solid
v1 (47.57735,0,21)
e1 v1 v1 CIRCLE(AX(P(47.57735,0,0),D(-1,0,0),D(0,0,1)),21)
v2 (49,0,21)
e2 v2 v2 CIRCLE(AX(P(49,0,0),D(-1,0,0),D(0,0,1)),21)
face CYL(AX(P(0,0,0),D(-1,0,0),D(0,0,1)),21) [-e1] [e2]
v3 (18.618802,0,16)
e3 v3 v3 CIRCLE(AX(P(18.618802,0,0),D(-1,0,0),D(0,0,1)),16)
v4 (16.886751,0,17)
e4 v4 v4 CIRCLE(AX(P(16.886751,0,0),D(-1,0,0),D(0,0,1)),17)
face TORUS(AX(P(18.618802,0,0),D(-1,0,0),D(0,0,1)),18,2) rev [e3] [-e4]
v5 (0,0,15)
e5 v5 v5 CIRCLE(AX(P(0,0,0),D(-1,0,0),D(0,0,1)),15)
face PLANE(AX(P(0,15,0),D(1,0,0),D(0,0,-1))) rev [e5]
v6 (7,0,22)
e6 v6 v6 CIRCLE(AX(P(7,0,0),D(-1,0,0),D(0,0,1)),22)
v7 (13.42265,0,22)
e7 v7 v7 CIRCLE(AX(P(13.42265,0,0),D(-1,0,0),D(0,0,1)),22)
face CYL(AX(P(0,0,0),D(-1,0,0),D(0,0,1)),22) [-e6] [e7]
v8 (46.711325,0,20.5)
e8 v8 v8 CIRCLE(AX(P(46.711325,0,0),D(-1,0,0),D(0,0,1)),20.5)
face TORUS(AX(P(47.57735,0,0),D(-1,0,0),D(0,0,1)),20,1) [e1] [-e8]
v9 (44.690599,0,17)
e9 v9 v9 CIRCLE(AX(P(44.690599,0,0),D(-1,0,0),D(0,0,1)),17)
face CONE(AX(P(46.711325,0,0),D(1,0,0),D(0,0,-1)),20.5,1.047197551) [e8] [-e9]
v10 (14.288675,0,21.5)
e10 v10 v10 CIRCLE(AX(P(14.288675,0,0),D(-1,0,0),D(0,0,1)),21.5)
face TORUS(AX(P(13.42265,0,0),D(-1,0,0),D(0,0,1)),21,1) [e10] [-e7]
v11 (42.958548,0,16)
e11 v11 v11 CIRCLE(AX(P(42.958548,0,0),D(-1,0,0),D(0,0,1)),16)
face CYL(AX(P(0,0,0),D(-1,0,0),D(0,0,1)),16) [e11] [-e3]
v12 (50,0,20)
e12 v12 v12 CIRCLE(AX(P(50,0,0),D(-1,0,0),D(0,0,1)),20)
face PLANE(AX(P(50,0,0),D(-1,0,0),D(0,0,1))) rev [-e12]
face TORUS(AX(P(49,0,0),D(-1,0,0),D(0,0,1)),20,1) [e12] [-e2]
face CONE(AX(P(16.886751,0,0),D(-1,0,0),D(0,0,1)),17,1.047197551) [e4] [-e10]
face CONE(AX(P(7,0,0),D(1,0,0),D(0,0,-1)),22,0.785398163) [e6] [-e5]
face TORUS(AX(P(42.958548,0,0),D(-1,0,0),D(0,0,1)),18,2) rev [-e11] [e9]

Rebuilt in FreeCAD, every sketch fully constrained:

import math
import FreeCAD as App
import Part
import Sketcher
from FreeCAD import Vector
Q = App.Units.Quantity

doc = App.newDocument("Part")
params = doc.addObject("Spreadsheet::Sheet", "Params")
for row, (alias, value) in enumerate([
    ("sketch1_radius", "1 mm"),
    ("sketch1_radius2", "2 mm"),
    ("sketch1_width", "50 mm"),
    ("sketch1_height", "20 mm"),
    ("sketch1_height2", "15 mm"),
    ("revolution_angle", "360 deg"),
], start=1):
    params.set(f"A{row}", alias)
    params.set(f"B{row}", "=" + value)
    params.setAlias(f"B{row}", alias)

body = doc.addObject("PartDesign::Body", "Body")

# Sketch on XY plane
sketch1 = doc.addObject("Sketcher::SketchObject", "Sketch")
body.addObject(sketch1)
sketch1.AttachmentSupport = (doc.XY_Plane, [""])
sketch1.MapMode = "FlatFace"
sketch1.addGeometry([
    Part.LineSegment(Vector(50, 0, 0), Vector(50, 20, 0)),  # 0
    Part.ArcOfCircle(Part.Circle(Vector(49, 20, 0), Vector(0, 0, 1), 1), math.radians(0), math.radians(90)),  # 1
    Part.LineSegment(Vector(49, 21, 0), Vector(47.57735, 21, 0)),  # 2
    Part.ArcOfCircle(Part.Circle(Vector(47.57735, 20, 0), Vector(0, 0, 1), 1), math.radians(90), math.radians(150)),  # 3
    Part.LineSegment(Vector(46.711325, 20.5, 0), Vector(44.690599, 17, 0)),  # 4
    Part.ArcOfCircle(Part.Circle(Vector(42.958548, 18, 0), Vector(0, 0, 1), 2), math.radians(-90), math.radians(-30)),  # 5
    Part.LineSegment(Vector(42.958548, 16, 0), Vector(18.618802, 16, 0)),  # 6
    Part.ArcOfCircle(Part.Circle(Vector(18.618802, 18, 0), Vector(0, 0, 1), 2), math.radians(-150), math.radians(-90)),  # 7
    Part.LineSegment(Vector(16.886751, 17, 0), Vector(14.288675, 21.5, 0)),  # 8
    Part.ArcOfCircle(Part.Circle(Vector(13.42265, 21, 0), Vector(0, 0, 1), 1), math.radians(30), math.radians(90)),  # 9
    Part.LineSegment(Vector(13.42265, 22, 0), Vector(7, 22, 0)),  # 10
    Part.LineSegment(Vector(7, 22, 0), Vector(0, 15, 0)),  # 11
    Part.LineSegment(Vector(0, 15, 0), Vector(0, 0, 0)),  # 12
    Part.LineSegment(Vector(0, 0, 0), Vector(50, 0, 0)),  # 13
], False)
sketch1.addConstraint([
    Sketcher.Constraint("Tangent", 0, 2, 1, 1),
    Sketcher.Constraint("Tangent", 1, 2, 2, 1),
    Sketcher.Constraint("Tangent", 2, 2, 3, 1),
    Sketcher.Constraint("Tangent", 3, 2, 4, 1),
    Sketcher.Constraint("Tangent", 4, 2, 5, 2),
    Sketcher.Constraint("Tangent", 5, 1, 6, 1),
    Sketcher.Constraint("Tangent", 6, 2, 7, 2),
    Sketcher.Constraint("Tangent", 7, 1, 8, 1),
    Sketcher.Constraint("Tangent", 8, 2, 9, 1),
    Sketcher.Constraint("Tangent", 9, 2, 10, 1),
    Sketcher.Constraint("Coincident", 10, 2, 11, 1),
    Sketcher.Constraint("Coincident", 11, 2, 12, 1),
    Sketcher.Constraint("Coincident", 12, 2, 13, 1),
    Sketcher.Constraint("Coincident", 13, 2, 0, 1),
    Sketcher.Constraint("Vertical", 0),
    Sketcher.Constraint("Horizontal", 2),
    Sketcher.Constraint("Horizontal", 6),
    Sketcher.Constraint("Horizontal", 10),
    Sketcher.Constraint("Vertical", 12),
    Sketcher.Constraint("Horizontal", 13),
    Sketcher.Constraint("Coincident", 12, 2, -1, 1),
    Sketcher.Constraint("Equal", 1, 3),
    Sketcher.Constraint("Equal", 5, 7),
    Sketcher.Constraint("Equal", 3, 9),
    Sketcher.Constraint("Horizontal", 9, 3, 1, 2),
    Sketcher.Constraint("Horizontal", 4, 2, 7, 1),
    Sketcher.Constraint("Radius", 1, Q("1 mm")),
    Sketcher.Constraint("Radius", 5, Q("2 mm")),
    Sketcher.Constraint("DistanceX", 13, 1, 13, 2, Q("50 mm")),
    Sketcher.Constraint("DistanceY", 0, 1, 0, 2, Q("20 mm")),
    Sketcher.Constraint("DistanceY", 12, 2, 12, 1, Q("15 mm")),
    Sketcher.Constraint("Angle", 4, Q("-120 deg")),
    Sketcher.Constraint("Angle", 11, Q("-135 deg")),
    Sketcher.Constraint("DistanceY", -1, 1, 5, 3, Q("18 mm")),
    Sketcher.Constraint("DistanceX", 2, 2, 2, 1, Q("1.42265 mm")),
    Sketcher.Constraint("DistanceX", 10, 2, 10, 1, Q("6.42265 mm")),
])
sketch1.setExpression("Constraints[26]", "Params.sketch1_radius")
sketch1.setExpression("Constraints[27]", "Params.sketch1_radius2")
sketch1.setExpression("Constraints[28]", "Params.sketch1_width")
sketch1.setExpression("Constraints[29]", "Params.sketch1_height")
sketch1.setExpression("Constraints[30]", "Params.sketch1_height2")
revolution = doc.addObject("PartDesign::Revolution", "Revolution")
body.addObject(revolution)
revolution.Profile = sketch1
revolution.ReferenceAxis = (sketch1, ["H_Axis"])
revolution.setExpression("Angle", "Params.revolution_angle")

doc.recompute()
